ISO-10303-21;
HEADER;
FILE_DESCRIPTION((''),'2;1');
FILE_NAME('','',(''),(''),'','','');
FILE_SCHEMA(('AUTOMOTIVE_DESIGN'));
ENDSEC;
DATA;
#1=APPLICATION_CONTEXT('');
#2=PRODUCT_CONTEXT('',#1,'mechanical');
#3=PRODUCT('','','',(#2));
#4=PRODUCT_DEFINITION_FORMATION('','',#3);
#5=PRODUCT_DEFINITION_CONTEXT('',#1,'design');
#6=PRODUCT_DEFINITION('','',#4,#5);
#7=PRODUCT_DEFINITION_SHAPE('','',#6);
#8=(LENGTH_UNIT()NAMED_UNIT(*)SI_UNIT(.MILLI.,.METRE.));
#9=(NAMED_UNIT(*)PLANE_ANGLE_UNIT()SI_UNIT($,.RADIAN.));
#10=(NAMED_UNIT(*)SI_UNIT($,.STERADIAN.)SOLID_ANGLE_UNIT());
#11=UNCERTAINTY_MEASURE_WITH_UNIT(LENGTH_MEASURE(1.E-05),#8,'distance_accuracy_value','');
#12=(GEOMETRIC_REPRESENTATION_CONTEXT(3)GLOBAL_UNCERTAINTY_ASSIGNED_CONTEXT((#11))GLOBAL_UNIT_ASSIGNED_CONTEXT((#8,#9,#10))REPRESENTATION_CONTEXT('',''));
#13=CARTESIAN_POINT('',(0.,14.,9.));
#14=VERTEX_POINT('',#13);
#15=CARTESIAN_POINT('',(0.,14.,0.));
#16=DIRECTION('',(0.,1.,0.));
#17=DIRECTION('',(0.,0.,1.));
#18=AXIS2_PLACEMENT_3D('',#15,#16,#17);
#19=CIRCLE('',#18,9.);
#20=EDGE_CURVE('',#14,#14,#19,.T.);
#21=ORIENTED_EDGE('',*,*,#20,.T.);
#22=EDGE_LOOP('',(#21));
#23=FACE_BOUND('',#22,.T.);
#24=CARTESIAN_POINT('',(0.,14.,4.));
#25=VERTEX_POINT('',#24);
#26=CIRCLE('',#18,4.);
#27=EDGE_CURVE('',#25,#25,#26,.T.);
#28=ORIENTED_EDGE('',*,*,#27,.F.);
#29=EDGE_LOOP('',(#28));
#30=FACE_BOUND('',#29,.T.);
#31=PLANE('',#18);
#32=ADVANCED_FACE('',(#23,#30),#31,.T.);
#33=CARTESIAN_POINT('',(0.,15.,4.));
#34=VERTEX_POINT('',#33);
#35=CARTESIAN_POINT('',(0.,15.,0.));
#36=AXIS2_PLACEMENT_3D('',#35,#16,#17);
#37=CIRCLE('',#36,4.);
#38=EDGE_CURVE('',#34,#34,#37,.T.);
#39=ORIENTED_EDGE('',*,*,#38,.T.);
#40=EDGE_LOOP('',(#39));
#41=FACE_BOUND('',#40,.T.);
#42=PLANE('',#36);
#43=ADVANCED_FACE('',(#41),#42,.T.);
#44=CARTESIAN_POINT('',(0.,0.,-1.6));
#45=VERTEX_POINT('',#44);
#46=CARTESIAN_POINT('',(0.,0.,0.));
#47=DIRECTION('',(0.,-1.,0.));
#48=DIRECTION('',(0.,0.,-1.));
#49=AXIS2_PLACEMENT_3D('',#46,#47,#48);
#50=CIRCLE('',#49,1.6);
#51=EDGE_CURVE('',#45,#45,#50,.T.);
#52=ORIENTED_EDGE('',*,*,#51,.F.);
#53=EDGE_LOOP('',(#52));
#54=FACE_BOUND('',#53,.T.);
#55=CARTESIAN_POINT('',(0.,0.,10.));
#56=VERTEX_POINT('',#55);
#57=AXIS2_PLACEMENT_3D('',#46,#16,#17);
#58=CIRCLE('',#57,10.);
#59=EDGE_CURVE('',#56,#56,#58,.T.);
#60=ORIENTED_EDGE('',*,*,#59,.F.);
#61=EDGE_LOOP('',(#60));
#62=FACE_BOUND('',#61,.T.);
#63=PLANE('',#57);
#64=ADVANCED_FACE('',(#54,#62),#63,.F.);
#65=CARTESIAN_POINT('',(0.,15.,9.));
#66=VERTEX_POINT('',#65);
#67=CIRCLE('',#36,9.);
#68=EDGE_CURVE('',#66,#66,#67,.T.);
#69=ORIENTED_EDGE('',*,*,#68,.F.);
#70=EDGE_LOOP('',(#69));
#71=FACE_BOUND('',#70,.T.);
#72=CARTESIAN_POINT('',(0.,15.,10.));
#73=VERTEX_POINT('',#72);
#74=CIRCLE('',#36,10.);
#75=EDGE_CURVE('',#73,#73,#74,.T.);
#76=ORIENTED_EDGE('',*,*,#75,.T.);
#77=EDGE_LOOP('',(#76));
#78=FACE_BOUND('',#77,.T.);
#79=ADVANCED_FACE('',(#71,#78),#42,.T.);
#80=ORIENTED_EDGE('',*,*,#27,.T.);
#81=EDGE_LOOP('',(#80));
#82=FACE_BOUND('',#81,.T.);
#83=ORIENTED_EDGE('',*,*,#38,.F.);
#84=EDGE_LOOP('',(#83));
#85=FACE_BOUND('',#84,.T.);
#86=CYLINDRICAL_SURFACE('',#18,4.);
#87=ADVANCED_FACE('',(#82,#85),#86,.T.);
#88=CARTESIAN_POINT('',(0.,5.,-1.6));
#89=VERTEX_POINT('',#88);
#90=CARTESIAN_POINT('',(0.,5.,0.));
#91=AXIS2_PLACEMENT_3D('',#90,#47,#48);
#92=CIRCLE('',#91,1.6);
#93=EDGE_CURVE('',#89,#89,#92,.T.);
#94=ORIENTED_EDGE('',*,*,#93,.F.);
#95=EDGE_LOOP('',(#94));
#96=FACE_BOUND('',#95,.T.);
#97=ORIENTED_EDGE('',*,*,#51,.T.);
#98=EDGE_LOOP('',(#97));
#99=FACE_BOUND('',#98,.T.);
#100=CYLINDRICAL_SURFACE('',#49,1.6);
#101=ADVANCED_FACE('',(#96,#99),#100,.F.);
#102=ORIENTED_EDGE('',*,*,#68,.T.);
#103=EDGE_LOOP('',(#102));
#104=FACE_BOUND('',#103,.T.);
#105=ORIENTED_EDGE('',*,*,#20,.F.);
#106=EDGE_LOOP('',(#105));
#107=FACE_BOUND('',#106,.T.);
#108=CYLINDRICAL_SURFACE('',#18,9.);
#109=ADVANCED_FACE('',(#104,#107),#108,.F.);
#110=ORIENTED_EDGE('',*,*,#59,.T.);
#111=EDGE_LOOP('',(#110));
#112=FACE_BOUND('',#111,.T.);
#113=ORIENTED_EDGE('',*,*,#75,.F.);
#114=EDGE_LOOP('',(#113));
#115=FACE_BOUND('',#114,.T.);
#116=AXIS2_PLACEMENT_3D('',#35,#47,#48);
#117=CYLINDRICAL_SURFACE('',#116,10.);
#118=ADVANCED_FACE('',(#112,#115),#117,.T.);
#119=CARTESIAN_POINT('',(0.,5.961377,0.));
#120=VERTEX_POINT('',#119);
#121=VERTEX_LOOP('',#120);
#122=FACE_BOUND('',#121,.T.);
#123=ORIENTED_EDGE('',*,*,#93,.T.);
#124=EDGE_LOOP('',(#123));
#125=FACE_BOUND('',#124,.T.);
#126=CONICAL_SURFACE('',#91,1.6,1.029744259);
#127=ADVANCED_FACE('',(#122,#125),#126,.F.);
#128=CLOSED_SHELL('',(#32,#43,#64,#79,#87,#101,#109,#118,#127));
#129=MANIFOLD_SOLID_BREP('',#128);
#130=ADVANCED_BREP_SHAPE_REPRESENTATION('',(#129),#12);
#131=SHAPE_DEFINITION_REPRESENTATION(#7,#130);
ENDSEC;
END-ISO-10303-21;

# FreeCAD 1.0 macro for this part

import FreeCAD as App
import Part
import Sketcher
Q = App.Units.Quantity

doc = App.newDocument("Part")
params = doc.addObject("Spreadsheet::Sheet", "Params")
for row, (alias, value) in enumerate([
    ("sketch1_diameter", "20 mm"),
    ("pad1_length", "15 mm"),
    ("sketch2_diameter", "18 mm"),
    ("sketch2_diameter2", "8 mm"),
    ("pocket1_length", "1 mm"),
    ("sketch3_diameter", "3.2 mm"),
    ("hole_diameter", "3.2 mm"),
    ("hole_depth", "5 mm"),
], start=1):
    params.set(f"A{row}", alias)
    params.set(f"B{row}", "=" + value)
    params.setAlias(f"B{row}", alias)

body = doc.addObject("PartDesign::Body", "Body")

# Sketch on XZ plane
sketch1 = doc.addObject("Sketcher::SketchObject", "Sketch")
body.addObject(sketch1)
sketch1.AttachmentSupport = (doc.XZ_Plane, [""])
sketch1.MapMode = "FlatFace"
sketch1.addGeometry(Part.Circle(App.Vector(0, 0, 0), App.Vector(0, 0, 1), 10), False)
sketch1.addConstraint(Sketcher.Constraint("Coincident", 0, 3, -1, 1))
sketch1.addConstraint(Sketcher.Constraint("Diameter", 0, Q("20 mm")))
sketch1.setExpression("Constraints[1]", "Params.sketch1_diameter")
pad1 = doc.addObject("PartDesign::Pad", "Pad")
body.addObject(pad1)
pad1.Profile = sketch1
pad1.setExpression("Length", "Params.pad1_length")
pad1.Reversed = True

# Sketch on XZ plane
sketch2 = doc.addObject("Sketcher::SketchObject", "Sketch001")
body.addObject(sketch2)
sketch2.AttachmentSupport = (doc.XZ_Plane, [""])
sketch2.MapMode = "FlatFace"
sketch2.AttachmentOffset = App.Placement(App.Vector(0, 0, -15), App.Rotation())
sketch2.addGeometry(Part.Circle(App.Vector(0, 0, 0), App.Vector(0, 0, 1), 9), False)
sketch2.addGeometry(Part.Circle(App.Vector(0, 0, 0), App.Vector(0, 0, 1), 4), False)
sketch2.addConstraint(Sketcher.Constraint("Coincident", 0, 3, -1, 1))
sketch2.addConstraint(Sketcher.Constraint("Coincident", 1, 3, -1, 1))
sketch2.addConstraint(Sketcher.Constraint("Diameter", 0, Q("18 mm")))
sketch2.addConstraint(Sketcher.Constraint("Diameter", 1, Q("8 mm")))
sketch2.setExpression("Constraints[2]", "Params.sketch2_diameter")
sketch2.setExpression("Constraints[3]", "Params.sketch2_diameter2")
pocket1 = doc.addObject("PartDesign::Pocket", "Pocket")
body.addObject(pocket1)
pocket1.Profile = sketch2
pocket1.setExpression("Length", "Params.pocket1_length")
pocket1.Reversed = True

# Sketch on XZ plane
sketch3 = doc.addObject("Sketcher::SketchObject", "Sketch002")
body.addObject(sketch3)
sketch3.AttachmentSupport = (doc.XZ_Plane, [""])
sketch3.MapMode = "FlatFace"
sketch3.addGeometry(Part.Circle(App.Vector(0, 0, 0), App.Vector(0, 0, 1), 1.6), False)
sketch3.addConstraint(Sketcher.Constraint("Coincident", 0, 3, -1, 1))
sketch3.addConstraint(Sketcher.Constraint("Diameter", 0, Q("3.2 mm")))
sketch3.setExpression("Constraints[1]", "Params.sketch3_diameter")
doc.recompute()
hole = doc.addObject("PartDesign::Hole", "Hole")
body.addObject(hole)
hole.Profile = sketch3
hole.ThreadType = "None"
hole.setExpression("Diameter", "Params.hole_diameter")
hole.DepthType = "Dimension"
hole.setExpression("Depth", "Params.hole_depth")
hole.DrillPoint = "Angled"
hole.DrillPointAngle = 118

doc.recompute()
